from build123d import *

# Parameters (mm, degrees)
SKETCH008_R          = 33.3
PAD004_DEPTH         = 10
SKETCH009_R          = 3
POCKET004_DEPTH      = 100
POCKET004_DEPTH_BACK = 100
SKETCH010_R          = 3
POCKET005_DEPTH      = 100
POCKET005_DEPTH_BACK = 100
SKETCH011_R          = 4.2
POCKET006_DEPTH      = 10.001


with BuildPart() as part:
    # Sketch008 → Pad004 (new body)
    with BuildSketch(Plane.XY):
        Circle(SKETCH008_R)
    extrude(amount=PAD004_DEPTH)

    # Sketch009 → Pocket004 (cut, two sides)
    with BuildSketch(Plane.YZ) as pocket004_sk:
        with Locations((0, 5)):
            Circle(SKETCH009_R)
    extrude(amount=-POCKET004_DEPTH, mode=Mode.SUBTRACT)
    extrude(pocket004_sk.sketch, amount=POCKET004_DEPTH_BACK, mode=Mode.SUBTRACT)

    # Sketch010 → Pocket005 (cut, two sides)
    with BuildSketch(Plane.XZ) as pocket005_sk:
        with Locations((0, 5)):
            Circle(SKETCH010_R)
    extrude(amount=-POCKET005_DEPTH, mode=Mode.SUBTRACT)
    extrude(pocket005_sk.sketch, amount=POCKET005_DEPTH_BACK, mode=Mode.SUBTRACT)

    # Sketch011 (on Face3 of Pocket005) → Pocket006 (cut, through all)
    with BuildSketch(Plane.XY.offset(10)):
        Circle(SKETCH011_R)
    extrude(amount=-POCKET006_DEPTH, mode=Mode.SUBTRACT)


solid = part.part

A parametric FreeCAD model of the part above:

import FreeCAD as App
import Part
import Sketcher

V = App.Vector

doc = App.newDocument("Part")
body = doc.addObject("PartDesign::Body", "Body")

sketch1 = body.newObject("Sketcher::SketchObject", "Sketch")
sketch1.AttachmentSupport = (doc.getObject("XY_Plane"), [""])
sketch1.MapMode = "FlatFace"
sketch1.addGeometry(Part.Circle(V(0, 0, 0), V(0, 0, 1), 33.3), False)
sketch1.addConstraint(Sketcher.Constraint("Coincident", 0, 3, -1, 1))
sketch1.addConstraint(Sketcher.Constraint("Diameter", 0, 66.6))
pad1 = body.newObject("PartDesign::Pad", "Pad")
pad1.Profile = sketch1
pad1.Length = 10

sketch2 = body.newObject("Sketcher::SketchObject", "Sketch001")
sketch2.AttachmentSupport = (doc.getObject("YZ_Plane"), [""])
sketch2.MapMode = "FlatFace"
sketch2.addGeometry(Part.Circle(V(0, 5, 0), V(0, 0, 1), 3), False)
sketch2.addConstraint(Sketcher.Constraint("PointOnObject", 0, 3, -2))
sketch2.addConstraint(Sketcher.Constraint("Diameter", 0, 6.0))
sketch2.addConstraint(Sketcher.Constraint("DistanceY", -1, 1, 0, 3, 5.0))
pocket1 = body.newObject("PartDesign::Pocket", "Pocket")
pocket1.Profile = sketch2
pocket1.Type = "ThroughAll"
pocket1.Midplane = True

sketch3 = body.newObject("Sketcher::SketchObject", "Sketch002")
sketch3.AttachmentSupport = (doc.getObject("XZ_Plane"), [""])
sketch3.MapMode = "FlatFace"
sketch3.addGeometry(Part.Circle(V(0, 5, 0), V(0, 0, 1), 3), False)
sketch3.addConstraint(Sketcher.Constraint("PointOnObject", 0, 3, -2))
sketch3.addConstraint(Sketcher.Constraint("Diameter", 0, 6.0))
sketch3.addConstraint(Sketcher.Constraint("DistanceY", -1, 1, 0, 3, 5.0))
pocket2 = body.newObject("PartDesign::Pocket", "Pocket001")
pocket2.Profile = sketch3
pocket2.Type = "ThroughAll"
pocket2.Midplane = True

sketch4 = body.newObject("Sketcher::SketchObject", "Sketch003")
sketch4.AttachmentSupport = (doc.getObject("XY_Plane"), [""])
sketch4.MapMode = "FlatFace"
sketch4.AttachmentOffset = App.Placement(V(0, 0, 10), App.Rotation())
sketch4.addGeometry(Part.Circle(V(0, 0, 0), V(0, 0, 1), 4.2), False)
sketch4.addConstraint(Sketcher.Constraint("Coincident", 0, 3, -1, 1))
sketch4.addConstraint(Sketcher.Constraint("Diameter", 0, 8.4))
pocket3 = body.newObject("PartDesign::Pocket", "Pocket002")
pocket3.Profile = sketch4
pocket3.Type = "ThroughAll"

doc.recompute()
